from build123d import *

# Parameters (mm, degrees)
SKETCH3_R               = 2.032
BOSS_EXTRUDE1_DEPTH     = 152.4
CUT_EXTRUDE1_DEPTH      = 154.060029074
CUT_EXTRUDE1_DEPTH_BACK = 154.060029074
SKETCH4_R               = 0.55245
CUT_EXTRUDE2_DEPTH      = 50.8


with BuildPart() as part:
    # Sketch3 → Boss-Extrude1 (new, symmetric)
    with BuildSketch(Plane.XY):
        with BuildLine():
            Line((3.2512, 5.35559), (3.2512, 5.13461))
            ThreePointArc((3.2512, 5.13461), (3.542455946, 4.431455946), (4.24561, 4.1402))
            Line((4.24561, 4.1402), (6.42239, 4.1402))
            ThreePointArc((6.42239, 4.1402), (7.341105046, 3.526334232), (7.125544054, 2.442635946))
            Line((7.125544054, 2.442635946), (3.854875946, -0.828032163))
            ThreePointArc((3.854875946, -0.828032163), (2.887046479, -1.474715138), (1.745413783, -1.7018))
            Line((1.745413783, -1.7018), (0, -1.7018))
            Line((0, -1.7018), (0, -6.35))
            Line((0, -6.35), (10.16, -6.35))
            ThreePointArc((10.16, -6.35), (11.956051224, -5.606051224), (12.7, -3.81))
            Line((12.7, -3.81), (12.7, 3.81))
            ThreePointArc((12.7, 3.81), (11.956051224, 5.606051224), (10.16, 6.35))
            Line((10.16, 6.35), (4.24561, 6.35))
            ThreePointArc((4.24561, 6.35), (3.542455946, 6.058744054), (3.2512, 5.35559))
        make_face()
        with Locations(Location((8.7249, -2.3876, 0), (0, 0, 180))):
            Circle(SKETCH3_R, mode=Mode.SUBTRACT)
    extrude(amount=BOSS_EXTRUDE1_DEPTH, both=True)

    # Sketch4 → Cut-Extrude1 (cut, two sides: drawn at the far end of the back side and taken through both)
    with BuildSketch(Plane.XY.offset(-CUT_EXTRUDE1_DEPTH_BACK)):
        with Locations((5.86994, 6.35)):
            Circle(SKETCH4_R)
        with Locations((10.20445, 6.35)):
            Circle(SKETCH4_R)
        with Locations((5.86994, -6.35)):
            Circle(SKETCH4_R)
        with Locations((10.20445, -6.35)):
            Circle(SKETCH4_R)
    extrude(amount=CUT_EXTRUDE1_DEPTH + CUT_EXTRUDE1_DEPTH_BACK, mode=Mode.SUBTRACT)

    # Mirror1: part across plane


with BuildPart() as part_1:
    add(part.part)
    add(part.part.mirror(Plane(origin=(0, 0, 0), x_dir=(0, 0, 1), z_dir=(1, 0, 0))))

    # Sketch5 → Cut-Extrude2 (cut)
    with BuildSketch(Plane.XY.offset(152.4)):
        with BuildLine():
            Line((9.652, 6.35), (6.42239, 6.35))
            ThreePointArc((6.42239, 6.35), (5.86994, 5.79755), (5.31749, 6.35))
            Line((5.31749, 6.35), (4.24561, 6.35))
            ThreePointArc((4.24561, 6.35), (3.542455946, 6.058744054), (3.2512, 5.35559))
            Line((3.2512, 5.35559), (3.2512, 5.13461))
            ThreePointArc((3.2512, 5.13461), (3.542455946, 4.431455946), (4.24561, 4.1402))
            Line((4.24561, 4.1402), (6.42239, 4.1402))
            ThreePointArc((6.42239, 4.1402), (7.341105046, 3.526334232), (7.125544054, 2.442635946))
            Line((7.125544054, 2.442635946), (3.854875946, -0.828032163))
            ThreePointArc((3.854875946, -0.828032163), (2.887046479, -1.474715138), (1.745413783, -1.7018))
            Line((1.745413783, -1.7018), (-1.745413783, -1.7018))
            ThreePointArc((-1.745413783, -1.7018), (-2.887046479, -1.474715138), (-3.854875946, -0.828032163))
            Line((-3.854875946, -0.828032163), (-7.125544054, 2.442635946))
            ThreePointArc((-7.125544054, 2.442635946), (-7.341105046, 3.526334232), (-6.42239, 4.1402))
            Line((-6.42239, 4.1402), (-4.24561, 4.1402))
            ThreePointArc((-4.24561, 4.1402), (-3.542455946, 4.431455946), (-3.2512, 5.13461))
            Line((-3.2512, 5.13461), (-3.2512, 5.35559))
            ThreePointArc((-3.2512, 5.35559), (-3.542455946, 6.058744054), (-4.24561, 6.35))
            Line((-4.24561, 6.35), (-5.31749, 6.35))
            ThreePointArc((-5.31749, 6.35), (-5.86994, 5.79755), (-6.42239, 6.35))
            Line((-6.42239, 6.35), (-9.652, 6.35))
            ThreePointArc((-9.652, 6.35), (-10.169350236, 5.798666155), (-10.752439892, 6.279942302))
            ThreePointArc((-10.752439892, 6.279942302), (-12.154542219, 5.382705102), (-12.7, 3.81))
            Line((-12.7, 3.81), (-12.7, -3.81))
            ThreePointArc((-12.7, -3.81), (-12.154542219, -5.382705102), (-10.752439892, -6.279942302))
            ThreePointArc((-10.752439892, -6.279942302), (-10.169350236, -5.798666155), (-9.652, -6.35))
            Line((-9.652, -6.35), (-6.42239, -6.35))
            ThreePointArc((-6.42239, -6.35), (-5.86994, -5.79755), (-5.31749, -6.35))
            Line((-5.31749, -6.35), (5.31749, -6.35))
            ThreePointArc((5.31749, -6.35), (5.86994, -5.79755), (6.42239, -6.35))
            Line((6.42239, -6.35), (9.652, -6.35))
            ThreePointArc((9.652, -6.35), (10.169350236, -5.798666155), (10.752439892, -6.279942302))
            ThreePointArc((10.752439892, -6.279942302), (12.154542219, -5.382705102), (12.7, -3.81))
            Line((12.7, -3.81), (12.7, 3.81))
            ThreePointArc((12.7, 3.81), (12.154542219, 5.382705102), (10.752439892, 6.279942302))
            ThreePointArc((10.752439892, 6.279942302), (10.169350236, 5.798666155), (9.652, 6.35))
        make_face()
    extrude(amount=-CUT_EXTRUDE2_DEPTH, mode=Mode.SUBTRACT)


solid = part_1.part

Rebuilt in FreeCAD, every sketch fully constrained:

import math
import FreeCAD as App
import Part
import Sketcher
from FreeCAD import Vector
Q = App.Units.Quantity

doc = App.newDocument("Part")
body = doc.addObject("PartDesign::Body", "Body")

sketch1 = body.newObject("Sketcher::SketchObject", "Sketch")
sketch1.AttachmentSupport = (doc.getObject("XY_Plane"), [""])
sketch1.MapMode = "FlatFace"
sketch1.addGeometry([
    Part.LineSegment(Vector(3.25, 5.36, 0), Vector(3.25, 5.13, 0)),
    Part.ArcOfCircle(Part.Circle(Vector(4.25, 5.13, 0), Vector(0, 0, 1), 0.99), math.radians(-180), math.radians(-90)),
    Part.LineSegment(Vector(4.25, 4.14, 0), Vector(6.42, 4.14, 0)),
    Part.ArcOfCircle(Part.Circle(Vector(6.42, 3.15, 0), Vector(0, 0, 1), 0.99), math.radians(-45), math.radians(90)),
    Part.LineSegment(Vector(7.13, 2.44, 0), Vector(3.85, -0.83, 0)),
    Part.ArcOfCircle(Part.Circle(Vector(1.75, 1.28, 0), Vector(0, 0, 1), 2.98), math.radians(-90), math.radians(-45)),
    Part.LineSegment(Vector(1.75, -1.7, 0), Vector(0, -1.7, 0)),
    Part.LineSegment(Vector(0, -1.7, 0), Vector(0, -6.35, 0)),
    Part.LineSegment(Vector(0, -6.35, 0), Vector(10.16, -6.35, 0)),
    Part.ArcOfCircle(Part.Circle(Vector(10.16, -3.81, 0), Vector(0, 0, 1), 2.54), math.radians(-90), math.radians(0)),
    Part.LineSegment(Vector(12.7, -3.81, 0), Vector(12.7, 3.81, 0)),
    Part.ArcOfCircle(Part.Circle(Vector(10.16, 3.81, 0), Vector(0, 0, 1), 2.54), math.radians(0), math.radians(90)),
    Part.LineSegment(Vector(10.16, 6.35, 0), Vector(4.25, 6.35, 0)),
    Part.ArcOfCircle(Part.Circle(Vector(4.25, 5.36, 0), Vector(0, 0, 1), 0.99), math.radians(90), math.radians(180)),
    Part.Circle(Vector(8.72, -2.39, 0), Vector(0, 0, 1), 2.03),
], False)
sketch1.addConstraint([
    Sketcher.Constraint("Tangent", 0, 2, 1, 1),
    Sketcher.Constraint("Tangent", 1, 2, 2, 1),
    Sketcher.Constraint("Tangent", 2, 2, 3, 2),
    Sketcher.Constraint("Tangent", 3, 1, 4, 1),
    Sketcher.Constraint("Tangent", 4, 2, 5, 2),
    Sketcher.Constraint("Tangent", 5, 1, 6, 1),
    Sketcher.Constraint("Coincident", 6, 2, 7, 1),
    Sketcher.Constraint("Coincident", 7, 2, 8, 1),
    Sketcher.Constraint("Tangent", 8, 2, 9, 1),
    Sketcher.Constraint("Tangent", 9, 2, 10, 1),
    Sketcher.Constraint("Tangent", 10, 2, 11, 1),
    Sketcher.Constraint("Tangent", 11, 2, 12, 1),
    Sketcher.Constraint("Tangent", 12, 2, 13, 1),
    Sketcher.Constraint("Tangent", 13, 2, 0, 1),
    Sketcher.Constraint("Vertical", 0),
    Sketcher.Constraint("Horizontal", 2),
    Sketcher.Constraint("Horizontal", 6),
    Sketcher.Constraint("Vertical", 7),
    Sketcher.Constraint("Horizontal", 8),
    Sketcher.Constraint("Vertical", 10),
    Sketcher.Constraint("Horizontal", 12),
    Sketcher.Constraint("Equal", 1, 3),
    Sketcher.Constraint("Equal", 9, 11),
    Sketcher.Constraint("Equal", 3, 13),
    Sketcher.Constraint("PointOnObject", 6, 2, -2),
    Sketcher.Constraint("Radius", 9, Q("0.1 in")),
    Sketcher.Constraint("Diameter", 14, Q("0.16 in")),
    Sketcher.Constraint("DistanceX", 8, 1, 8, 2, Q("0.4 in")),
    Sketcher.Constraint("DistanceY", 10, 1, 10, 2, Q("0.3 in")),
    Sketcher.Constraint("Angle", 4, Q("-135 deg")),
    Sketcher.Constraint("DistanceY", 7, 2, 7, 1, Q("0.183 in")),
    Sketcher.Constraint("DistanceY", 9, 3, -1, 1, Q("0.15 in")),
    Sketcher.Constraint("DistanceY", 5, 1, 1, 2, Q("0.23 in")),
    Sketcher.Constraint("DistanceX", 2, 1, 2, 2, Q("0.0857 in")),
    Sketcher.Constraint("DistanceY", 0, 2, 0, 1, Q("0.0087 in")),
    Sketcher.Constraint("DistanceY", 14, 3, -1, 1, Q("0.094 in")),
    Sketcher.Constraint("DistanceX", -1, 1, 0, 2, Q("0.128 in")),
    Sketcher.Constraint("Radius", 5, Q("2.98323 mm")),
    Sketcher.Constraint("DistanceX", -1, 1, 14, 3, Q("0.3435 in")),
])
pad1 = body.newObject("PartDesign::Pad", "Pad")
pad1.Profile = sketch1
pad1.Length = Q("12 in")
pad1.Midplane = True

sketch2 = body.newObject("Sketcher::SketchObject", "Sketch001")
sketch2.AttachmentSupport = (doc.getObject("XY_Plane"), [""])
sketch2.MapMode = "FlatFace"
sketch2.addGeometry([
    Part.Circle(Vector(5.9, 6.3, 0), Vector(0, 0, 1), 0.6),
    Part.Circle(Vector(10.2, 6.3, 0), Vector(0, 0, 1), 0.6),
    Part.Circle(Vector(5.9, -6.3, 0), Vector(0, 0, 1), 0.6),
    Part.Circle(Vector(10.2, -6.3, 0), Vector(0, 0, 1), 0.6),
], False)
sketch2.addConstraint([
    Sketcher.Constraint("Equal", 0, 1),
    Sketcher.Constraint("Equal", 1, 2),
    Sketcher.Constraint("Equal", 2, 3),
    Sketcher.Constraint("Symmetric", 0, 3, 2, 3, -1),
    Sketcher.Constraint("Symmetric", 1, 3, 3, 3, -1),
    Sketcher.Constraint("Horizontal", 0, 3, 1, 3),
    Sketcher.Constraint("Diameter", 0, Q("0.0435 in")),
    Sketcher.Constraint("DistanceY", 2, 3, 0, 3, Q("0.5 in")),
    Sketcher.Constraint("DistanceX", -1, 1, 0, 3, Q("0.2311 in")),
    Sketcher.Constraint("DistanceX", -1, 1, 1, 3, Q("10.20445 mm")),
])
pocket1 = body.newObject("PartDesign::Pocket", "Pocket")
pocket1.Profile = sketch2
pocket1.Type = "ThroughAll"
pocket1.Midplane = True
body2 = doc.addObject("PartDesign::Body", "Body001")
doc.recompute()

body2.BaseFeature = body
doc.recompute()

mirroring = doc.addObject("Part::Mirroring", "Mirroring")
mirroring.Source = body
mirroring.Base = Vector(0, 0, 0)
mirroring.Normal = Vector(1, 0, 0)
body3 = doc.addObject("PartDesign::Body", "Body002")
body3.BaseFeature = mirroring
boolean = body2.newObject("PartDesign::Boolean", "Boolean")
boolean.Type = "Fuse"
boolean.addObjects([body3])
doc.recompute()

sketch3 = body2.newObject("Sketcher::SketchObject", "Sketch002")
sketch3.AttachmentSupport = (doc.getObject("XY_Plane001"), [""])
sketch3.MapMode = "FlatFace"
sketch3.AttachmentOffset = App.Placement(Vector(0, 0, 6 * 25.4), App.Rotation())
sketch3.addGeometry([
    Part.LineSegment(Vector(9.65, 6.35, 0), Vector(6.42, 6.35, 0)),
    Part.ArcOfCircle(Part.Circle(Vector(5.87, 6.35, 0), Vector(0, 0, 1), 0.55), math.radians(180), math.radians(360)),
    Part.LineSegment(Vector(5.32, 6.35, 0), Vector(4.25, 6.35, 0)),
    Part.ArcOfCircle(Part.Circle(Vector(4.25, 5.36, 0), Vector(0, 0, 1), 0.99), math.radians(90), math.radians(180)),
    Part.LineSegment(Vector(3.25, 5.36, 0), Vector(3.25, 5.13, 0)),
    Part.ArcOfCircle(Part.Circle(Vector(4.25, 5.13, 0), Vector(0, 0, 1), 0.99), math.radians(-180), math.radians(-90)),
    Part.LineSegment(Vector(4.25, 4.14, 0), Vector(6.42, 4.14, 0)),
    Part.ArcOfCircle(Part.Circle(Vector(6.42, 3.15, 0), Vector(0, 0, 1), 0.99), math.radians(-45), math.radians(90)),
    Part.LineSegment(Vector(7.13, 2.44, 0), Vector(3.85, -0.83, 0)),
    Part.ArcOfCircle(Part.Circle(Vector(1.75, 1.28, 0), Vector(0, 0, 1), 2.98), math.radians(-90), math.radians(-45)),
    Part.LineSegment(Vector(1.75, -1.7, 0), Vector(-1.75, -1.7, 0)),
    Part.ArcOfCircle(Part.Circle(Vector(-1.75, 1.28, 0), Vector(0, 0, 1), 2.98), math.radians(-135), math.radians(-90)),
    Part.LineSegment(Vector(-3.85, -0.83, 0), Vector(-7.13, 2.44, 0)),
    Part.ArcOfCircle(Part.Circle(Vector(-6.42, 3.15, 0), Vector(0, 0, 1), 0.99), math.radians(90), math.radians(225)),
    Part.LineSegment(Vector(-6.42, 4.14, 0), Vector(-4.25, 4.14, 0)),
    Part.ArcOfCircle(Part.Circle(Vector(-4.25, 5.13, 0), Vector(0, 0, 1), 0.99), math.radians(-90), math.radians(0)),
    Part.LineSegment(Vector(-3.25, 5.13, 0), Vector(-3.25, 5.36, 0)),
    Part.ArcOfCircle(Part.Circle(Vector(-4.25, 5.36, 0), Vector(0, 0, 1), 0.99), math.radians(0), math.radians(90)),
    Part.LineSegment(Vector(-4.25, 6.35, 0), Vector(-5.32, 6.35, 0)),
    Part.ArcOfCircle(Part.Circle(Vector(-5.87, 6.35, 0), Vector(0, 0, 1), 0.55), math.radians(180), math.radians(360)),
    Part.LineSegment(Vector(-6.42, 6.35, 0), Vector(-9.65, 6.35, 0)),
    Part.ArcOfCircle(Part.Circle(Vector(-10.2, 6.35, 0), Vector(0, 0, 1), 0.55), math.radians(-173), math.radians(0)),
    Part.ArcOfCircle(Part.Circle(Vector(-10.16, 3.81, 0), Vector(0, 0, 1), 2.54), math.radians(103), math.radians(180)),
    Part.LineSegment(Vector(-12.7, 3.81, 0), Vector(-12.7, -3.81, 0)),
    Part.ArcOfCircle(Part.Circle(Vector(-10.16, -3.81, 0), Vector(0, 0, 1), 2.54), math.radians(180), math.radians(257)),
    Part.ArcOfCircle(Part.Circle(Vector(-10.2, -6.35, 0), Vector(0, 0, 1), 0.55), math.radians(0), math.radians(173)),
    Part.LineSegment(Vector(-9.65, -6.35, 0), Vector(-6.42, -6.35, 0)),
    Part.ArcOfCircle(Part.Circle(Vector(-5.87, -6.35, 0), Vector(0, 0, 1), 0.55), math.radians(0), math.radians(180)),
    Part.LineSegment(Vector(-5.32, -6.35, 0), Vector(5.32, -6.35, 0)),
    Part.ArcOfCircle(Part.Circle(Vector(5.87, -6.35, 0), Vector(0, 0, 1), 0.55), math.radians(0), math.radians(180)),
    Part.LineSegment(Vector(6.42, -6.35, 0), Vector(9.65, -6.35, 0)),
    Part.ArcOfCircle(Part.Circle(Vector(10.2, -6.35, 0), Vector(0, 0, 1), 0.55), math.radians(7), math.radians(180)),
    Part.ArcOfCircle(Part.Circle(Vector(10.16, -3.81, 0), Vector(0, 0, 1), 2.54), math.radians(-77), math.radians(0)),
    Part.LineSegment(Vector(12.7, -3.81, 0), Vector(12.7, 3.81, 0)),
    Part.ArcOfCircle(Part.Circle(Vector(10.16, 3.81, 0), Vector(0, 0, 1), 2.54), math.radians(0), math.radians(77)),
    Part.ArcOfCircle(Part.Circle(Vector(10.2, 6.35, 0), Vector(0, 0, 1), 0.55), math.radians(-180), math.radians(-7)),
], False)
sketch3.addConstraint([
    Sketcher.Constraint("Coincident", 0, 2, 1, 2),
    Sketcher.Constraint("Coincident", 1, 1, 2, 1),
    Sketcher.Constraint("Tangent", 2, 2, 3, 1),
    Sketcher.Constraint("Tangent", 3, 2, 4, 1),
    Sketcher.Constraint("Tangent", 4, 2, 5, 1),
    Sketcher.Constraint("Tangent", 5, 2, 6, 1),
    Sketcher.Constraint("Tangent", 6, 2, 7, 2),
    Sketcher.Constraint("Tangent", 7, 1, 8, 1),
    Sketcher.Constraint("Tangent", 8, 2, 9, 2),
    Sketcher.Constraint("Tangent", 9, 1, 10, 1),
    Sketcher.Constraint("Tangent", 10, 2, 11, 2),
    Sketcher.Constraint("Tangent", 11, 1, 12, 1),
    Sketcher.Constraint("Tangent", 12, 2, 13, 2),
    Sketcher.Constraint("Tangent", 13, 1, 14, 1),
    Sketcher.Constraint("Tangent", 14, 2, 15, 1),
    Sketcher.Constraint("Tangent", 15, 2, 16, 1),
    Sketcher.Constraint("Tangent", 16, 2, 17, 1),
    Sketcher.Constraint("Tangent", 17, 2, 18, 1),
    Sketcher.Constraint("Coincident", 18, 2, 19, 2),
    Sketcher.Constraint("Coincident", 19, 1, 20, 1),
    Sketcher.Constraint("Coincident", 20, 2, 21, 2),
    Sketcher.Constraint("Coincident", 21, 1, 22, 1),
    Sketcher.Constraint("Tangent", 22, 2, 23, 1),
    Sketcher.Constraint("Tangent", 23, 2, 24, 1),
    Sketcher.Constraint("Coincident", 24, 2, 25, 2),
    Sketcher.Constraint("Coincident", 25, 1, 26, 1),
    Sketcher.Constraint("Coincident", 26, 2, 27, 2),
    Sketcher.Constraint("Coincident", 27, 1, 28, 1),
    Sketcher.Constraint("Coincident", 28, 2, 29, 2),
    Sketcher.Constraint("Coincident", 29, 1, 30, 1),
    Sketcher.Constraint("Coincident", 30, 2, 31, 2),
    Sketcher.Constraint("Coincident", 31, 1, 32, 1),
    Sketcher.Constraint("Tangent", 32, 2, 33, 1),
    Sketcher.Constraint("Tangent", 33, 2, 34, 1),
    Sketcher.Constraint("Coincident", 34, 2, 35, 2),
    Sketcher.Constraint("Coincident", 35, 1, 0, 1),
    Sketcher.Constraint("Horizontal", 0),
    Sketcher.Constraint("Horizontal", 2),
    Sketcher.Constraint("Vertical", 4),
    Sketcher.Constraint("Horizontal", 6),
    Sketcher.Constraint("Horizontal", 10),
    Sketcher.Constraint("Horizontal", 14),
    Sketcher.Constraint("Vertical", 16),
    Sketcher.Constraint("Horizontal", 18),
    Sketcher.Constraint("Horizontal", 20),
    Sketcher.Constraint("Vertical", 23),
    Sketcher.Constraint("Horizontal", 26),
    Sketcher.Constraint("Horizontal", 28),
    Sketcher.Constraint("Horizontal", 30),
    Sketcher.Constraint("Vertical", 33),
    Sketcher.Constraint("Equal", 3, 5),
    Sketcher.Constraint("Equal", 5, 7),
    Sketcher.Constraint("Equal", 9, 11),
    Sketcher.Constraint("Equal", 7, 13),
    Sketcher.Constraint("Equal", 13, 15),
    Sketcher.Constraint("Equal", 15, 17),
    Sketcher.Constraint("Equal", 1, 19),
    Sketcher.Constraint("Equal", 19, 21),
    Sketcher.Constraint("Equal", 22, 24),
    Sketcher.Constraint("Equal", 21, 25),
    Sketcher.Constraint("Equal", 25, 27),
    Sketcher.Constraint("Equal", 27, 29),
    Sketcher.Constraint("Equal", 29, 31),
    Sketcher.Constraint("Equal", 24, 32),
    Sketcher.Constraint("Equal", 32, 34),
    Sketcher.Constraint("Equal", 31, 35),
    Sketcher.Constraint("Symmetric", 1, 3, 27, 3, -1, 1),
    Sketcher.Constraint("Symmetric", 19, 3, 29, 3, -1, 1),
    Sketcher.Constraint("Symmetric", 21, 3, 31, 3, -1, 1),
    Sketcher.Constraint("Symmetric", 22, 3, 32, 3, -1, 1),
    Sketcher.Constraint("Symmetric", 25, 3, 35, 3, -1, 1),
    Sketcher.Constraint("Symmetric", 7, 3, 13, 3, -2),
    Sketcher.Constraint("Symmetric", 3, 3, 17, 3, -2),
    Sketcher.Constraint("Symmetric", 1, 3, 19, 3, -2),
    Sketcher.Constraint("Symmetric", 25, 3, 31, 3, -2),
    Sketcher.Constraint("Perpendicular", 8, 12),
    Sketcher.Constraint("Horizontal", 19, 3, 21, 3),
    Sketcher.Constraint("Horizontal", 24, 3, 32, 3),
    Sketcher.Constraint("Horizontal", 22, 3, 34, 3),
    Sketcher.Constraint("Horizontal", 35, 3, 0, 2),
    Sketcher.Constraint("Horizontal", 0, 2, 1, 1),
    Sketcher.Constraint("Horizontal", 8, 2, 11, 1),
    Sketcher.Constraint("Horizontal", 18, 2, 19, 1),
    Sketcher.Constraint("Horizontal", 31, 3, 25, 1),
    Sketcher.Constraint("Horizontal", 26, 2, 27, 1),
    Sketcher.Constraint("Horizontal", 28, 2, 29, 1),
    Sketcher.Constraint("Vertical", 7, 3, 0, 2),
    Sketcher.Constraint("Radius", 22, Q("0.1 in")),
    Sketcher.Constraint("DistanceY", 23, 2, 23, 1, Q("0.3 in")),
    Sketcher.Constraint("DistanceX", 22, 3, -1, 1, Q("0.4 in")),
    Sketcher.Constraint("DistanceY", 22, 3, 21, 3, Q("0.1 in")),
    Sketcher.Constraint("DistanceX", 20, 2, -1, 1, Q("0.38 in")),
    Sketcher.Constraint("DistanceX", 13, 3, 5, 3, Q("0.42 in")),
    Sketcher.Constraint("DistanceY", 9, 1, 5, 2, Q("0.23 in")),
    Sketcher.Constraint("DistanceX", 2, 2, 2, 1, Q("0.0422 in")),
    Sketcher.Constraint("DistanceX", 6, 1, 6, 2, Q("0.0857 in")),
    Sketcher.Constraint("DistanceY", 4, 2, 4, 1, Q("0.0087 in")),
    Sketcher.Constraint("DistanceX", -1, 1, 3, 2, Q("0.128 in")),
    Sketcher.Constraint("Radius", 9, Q("2.98323 mm")),
])
pocket2 = body2.newObject("PartDesign::Pocket", "Pocket001")
pocket2.Profile = sketch3
pocket2.Length = Q("2 in")
mirroring.Visibility = False

doc.recompute()
